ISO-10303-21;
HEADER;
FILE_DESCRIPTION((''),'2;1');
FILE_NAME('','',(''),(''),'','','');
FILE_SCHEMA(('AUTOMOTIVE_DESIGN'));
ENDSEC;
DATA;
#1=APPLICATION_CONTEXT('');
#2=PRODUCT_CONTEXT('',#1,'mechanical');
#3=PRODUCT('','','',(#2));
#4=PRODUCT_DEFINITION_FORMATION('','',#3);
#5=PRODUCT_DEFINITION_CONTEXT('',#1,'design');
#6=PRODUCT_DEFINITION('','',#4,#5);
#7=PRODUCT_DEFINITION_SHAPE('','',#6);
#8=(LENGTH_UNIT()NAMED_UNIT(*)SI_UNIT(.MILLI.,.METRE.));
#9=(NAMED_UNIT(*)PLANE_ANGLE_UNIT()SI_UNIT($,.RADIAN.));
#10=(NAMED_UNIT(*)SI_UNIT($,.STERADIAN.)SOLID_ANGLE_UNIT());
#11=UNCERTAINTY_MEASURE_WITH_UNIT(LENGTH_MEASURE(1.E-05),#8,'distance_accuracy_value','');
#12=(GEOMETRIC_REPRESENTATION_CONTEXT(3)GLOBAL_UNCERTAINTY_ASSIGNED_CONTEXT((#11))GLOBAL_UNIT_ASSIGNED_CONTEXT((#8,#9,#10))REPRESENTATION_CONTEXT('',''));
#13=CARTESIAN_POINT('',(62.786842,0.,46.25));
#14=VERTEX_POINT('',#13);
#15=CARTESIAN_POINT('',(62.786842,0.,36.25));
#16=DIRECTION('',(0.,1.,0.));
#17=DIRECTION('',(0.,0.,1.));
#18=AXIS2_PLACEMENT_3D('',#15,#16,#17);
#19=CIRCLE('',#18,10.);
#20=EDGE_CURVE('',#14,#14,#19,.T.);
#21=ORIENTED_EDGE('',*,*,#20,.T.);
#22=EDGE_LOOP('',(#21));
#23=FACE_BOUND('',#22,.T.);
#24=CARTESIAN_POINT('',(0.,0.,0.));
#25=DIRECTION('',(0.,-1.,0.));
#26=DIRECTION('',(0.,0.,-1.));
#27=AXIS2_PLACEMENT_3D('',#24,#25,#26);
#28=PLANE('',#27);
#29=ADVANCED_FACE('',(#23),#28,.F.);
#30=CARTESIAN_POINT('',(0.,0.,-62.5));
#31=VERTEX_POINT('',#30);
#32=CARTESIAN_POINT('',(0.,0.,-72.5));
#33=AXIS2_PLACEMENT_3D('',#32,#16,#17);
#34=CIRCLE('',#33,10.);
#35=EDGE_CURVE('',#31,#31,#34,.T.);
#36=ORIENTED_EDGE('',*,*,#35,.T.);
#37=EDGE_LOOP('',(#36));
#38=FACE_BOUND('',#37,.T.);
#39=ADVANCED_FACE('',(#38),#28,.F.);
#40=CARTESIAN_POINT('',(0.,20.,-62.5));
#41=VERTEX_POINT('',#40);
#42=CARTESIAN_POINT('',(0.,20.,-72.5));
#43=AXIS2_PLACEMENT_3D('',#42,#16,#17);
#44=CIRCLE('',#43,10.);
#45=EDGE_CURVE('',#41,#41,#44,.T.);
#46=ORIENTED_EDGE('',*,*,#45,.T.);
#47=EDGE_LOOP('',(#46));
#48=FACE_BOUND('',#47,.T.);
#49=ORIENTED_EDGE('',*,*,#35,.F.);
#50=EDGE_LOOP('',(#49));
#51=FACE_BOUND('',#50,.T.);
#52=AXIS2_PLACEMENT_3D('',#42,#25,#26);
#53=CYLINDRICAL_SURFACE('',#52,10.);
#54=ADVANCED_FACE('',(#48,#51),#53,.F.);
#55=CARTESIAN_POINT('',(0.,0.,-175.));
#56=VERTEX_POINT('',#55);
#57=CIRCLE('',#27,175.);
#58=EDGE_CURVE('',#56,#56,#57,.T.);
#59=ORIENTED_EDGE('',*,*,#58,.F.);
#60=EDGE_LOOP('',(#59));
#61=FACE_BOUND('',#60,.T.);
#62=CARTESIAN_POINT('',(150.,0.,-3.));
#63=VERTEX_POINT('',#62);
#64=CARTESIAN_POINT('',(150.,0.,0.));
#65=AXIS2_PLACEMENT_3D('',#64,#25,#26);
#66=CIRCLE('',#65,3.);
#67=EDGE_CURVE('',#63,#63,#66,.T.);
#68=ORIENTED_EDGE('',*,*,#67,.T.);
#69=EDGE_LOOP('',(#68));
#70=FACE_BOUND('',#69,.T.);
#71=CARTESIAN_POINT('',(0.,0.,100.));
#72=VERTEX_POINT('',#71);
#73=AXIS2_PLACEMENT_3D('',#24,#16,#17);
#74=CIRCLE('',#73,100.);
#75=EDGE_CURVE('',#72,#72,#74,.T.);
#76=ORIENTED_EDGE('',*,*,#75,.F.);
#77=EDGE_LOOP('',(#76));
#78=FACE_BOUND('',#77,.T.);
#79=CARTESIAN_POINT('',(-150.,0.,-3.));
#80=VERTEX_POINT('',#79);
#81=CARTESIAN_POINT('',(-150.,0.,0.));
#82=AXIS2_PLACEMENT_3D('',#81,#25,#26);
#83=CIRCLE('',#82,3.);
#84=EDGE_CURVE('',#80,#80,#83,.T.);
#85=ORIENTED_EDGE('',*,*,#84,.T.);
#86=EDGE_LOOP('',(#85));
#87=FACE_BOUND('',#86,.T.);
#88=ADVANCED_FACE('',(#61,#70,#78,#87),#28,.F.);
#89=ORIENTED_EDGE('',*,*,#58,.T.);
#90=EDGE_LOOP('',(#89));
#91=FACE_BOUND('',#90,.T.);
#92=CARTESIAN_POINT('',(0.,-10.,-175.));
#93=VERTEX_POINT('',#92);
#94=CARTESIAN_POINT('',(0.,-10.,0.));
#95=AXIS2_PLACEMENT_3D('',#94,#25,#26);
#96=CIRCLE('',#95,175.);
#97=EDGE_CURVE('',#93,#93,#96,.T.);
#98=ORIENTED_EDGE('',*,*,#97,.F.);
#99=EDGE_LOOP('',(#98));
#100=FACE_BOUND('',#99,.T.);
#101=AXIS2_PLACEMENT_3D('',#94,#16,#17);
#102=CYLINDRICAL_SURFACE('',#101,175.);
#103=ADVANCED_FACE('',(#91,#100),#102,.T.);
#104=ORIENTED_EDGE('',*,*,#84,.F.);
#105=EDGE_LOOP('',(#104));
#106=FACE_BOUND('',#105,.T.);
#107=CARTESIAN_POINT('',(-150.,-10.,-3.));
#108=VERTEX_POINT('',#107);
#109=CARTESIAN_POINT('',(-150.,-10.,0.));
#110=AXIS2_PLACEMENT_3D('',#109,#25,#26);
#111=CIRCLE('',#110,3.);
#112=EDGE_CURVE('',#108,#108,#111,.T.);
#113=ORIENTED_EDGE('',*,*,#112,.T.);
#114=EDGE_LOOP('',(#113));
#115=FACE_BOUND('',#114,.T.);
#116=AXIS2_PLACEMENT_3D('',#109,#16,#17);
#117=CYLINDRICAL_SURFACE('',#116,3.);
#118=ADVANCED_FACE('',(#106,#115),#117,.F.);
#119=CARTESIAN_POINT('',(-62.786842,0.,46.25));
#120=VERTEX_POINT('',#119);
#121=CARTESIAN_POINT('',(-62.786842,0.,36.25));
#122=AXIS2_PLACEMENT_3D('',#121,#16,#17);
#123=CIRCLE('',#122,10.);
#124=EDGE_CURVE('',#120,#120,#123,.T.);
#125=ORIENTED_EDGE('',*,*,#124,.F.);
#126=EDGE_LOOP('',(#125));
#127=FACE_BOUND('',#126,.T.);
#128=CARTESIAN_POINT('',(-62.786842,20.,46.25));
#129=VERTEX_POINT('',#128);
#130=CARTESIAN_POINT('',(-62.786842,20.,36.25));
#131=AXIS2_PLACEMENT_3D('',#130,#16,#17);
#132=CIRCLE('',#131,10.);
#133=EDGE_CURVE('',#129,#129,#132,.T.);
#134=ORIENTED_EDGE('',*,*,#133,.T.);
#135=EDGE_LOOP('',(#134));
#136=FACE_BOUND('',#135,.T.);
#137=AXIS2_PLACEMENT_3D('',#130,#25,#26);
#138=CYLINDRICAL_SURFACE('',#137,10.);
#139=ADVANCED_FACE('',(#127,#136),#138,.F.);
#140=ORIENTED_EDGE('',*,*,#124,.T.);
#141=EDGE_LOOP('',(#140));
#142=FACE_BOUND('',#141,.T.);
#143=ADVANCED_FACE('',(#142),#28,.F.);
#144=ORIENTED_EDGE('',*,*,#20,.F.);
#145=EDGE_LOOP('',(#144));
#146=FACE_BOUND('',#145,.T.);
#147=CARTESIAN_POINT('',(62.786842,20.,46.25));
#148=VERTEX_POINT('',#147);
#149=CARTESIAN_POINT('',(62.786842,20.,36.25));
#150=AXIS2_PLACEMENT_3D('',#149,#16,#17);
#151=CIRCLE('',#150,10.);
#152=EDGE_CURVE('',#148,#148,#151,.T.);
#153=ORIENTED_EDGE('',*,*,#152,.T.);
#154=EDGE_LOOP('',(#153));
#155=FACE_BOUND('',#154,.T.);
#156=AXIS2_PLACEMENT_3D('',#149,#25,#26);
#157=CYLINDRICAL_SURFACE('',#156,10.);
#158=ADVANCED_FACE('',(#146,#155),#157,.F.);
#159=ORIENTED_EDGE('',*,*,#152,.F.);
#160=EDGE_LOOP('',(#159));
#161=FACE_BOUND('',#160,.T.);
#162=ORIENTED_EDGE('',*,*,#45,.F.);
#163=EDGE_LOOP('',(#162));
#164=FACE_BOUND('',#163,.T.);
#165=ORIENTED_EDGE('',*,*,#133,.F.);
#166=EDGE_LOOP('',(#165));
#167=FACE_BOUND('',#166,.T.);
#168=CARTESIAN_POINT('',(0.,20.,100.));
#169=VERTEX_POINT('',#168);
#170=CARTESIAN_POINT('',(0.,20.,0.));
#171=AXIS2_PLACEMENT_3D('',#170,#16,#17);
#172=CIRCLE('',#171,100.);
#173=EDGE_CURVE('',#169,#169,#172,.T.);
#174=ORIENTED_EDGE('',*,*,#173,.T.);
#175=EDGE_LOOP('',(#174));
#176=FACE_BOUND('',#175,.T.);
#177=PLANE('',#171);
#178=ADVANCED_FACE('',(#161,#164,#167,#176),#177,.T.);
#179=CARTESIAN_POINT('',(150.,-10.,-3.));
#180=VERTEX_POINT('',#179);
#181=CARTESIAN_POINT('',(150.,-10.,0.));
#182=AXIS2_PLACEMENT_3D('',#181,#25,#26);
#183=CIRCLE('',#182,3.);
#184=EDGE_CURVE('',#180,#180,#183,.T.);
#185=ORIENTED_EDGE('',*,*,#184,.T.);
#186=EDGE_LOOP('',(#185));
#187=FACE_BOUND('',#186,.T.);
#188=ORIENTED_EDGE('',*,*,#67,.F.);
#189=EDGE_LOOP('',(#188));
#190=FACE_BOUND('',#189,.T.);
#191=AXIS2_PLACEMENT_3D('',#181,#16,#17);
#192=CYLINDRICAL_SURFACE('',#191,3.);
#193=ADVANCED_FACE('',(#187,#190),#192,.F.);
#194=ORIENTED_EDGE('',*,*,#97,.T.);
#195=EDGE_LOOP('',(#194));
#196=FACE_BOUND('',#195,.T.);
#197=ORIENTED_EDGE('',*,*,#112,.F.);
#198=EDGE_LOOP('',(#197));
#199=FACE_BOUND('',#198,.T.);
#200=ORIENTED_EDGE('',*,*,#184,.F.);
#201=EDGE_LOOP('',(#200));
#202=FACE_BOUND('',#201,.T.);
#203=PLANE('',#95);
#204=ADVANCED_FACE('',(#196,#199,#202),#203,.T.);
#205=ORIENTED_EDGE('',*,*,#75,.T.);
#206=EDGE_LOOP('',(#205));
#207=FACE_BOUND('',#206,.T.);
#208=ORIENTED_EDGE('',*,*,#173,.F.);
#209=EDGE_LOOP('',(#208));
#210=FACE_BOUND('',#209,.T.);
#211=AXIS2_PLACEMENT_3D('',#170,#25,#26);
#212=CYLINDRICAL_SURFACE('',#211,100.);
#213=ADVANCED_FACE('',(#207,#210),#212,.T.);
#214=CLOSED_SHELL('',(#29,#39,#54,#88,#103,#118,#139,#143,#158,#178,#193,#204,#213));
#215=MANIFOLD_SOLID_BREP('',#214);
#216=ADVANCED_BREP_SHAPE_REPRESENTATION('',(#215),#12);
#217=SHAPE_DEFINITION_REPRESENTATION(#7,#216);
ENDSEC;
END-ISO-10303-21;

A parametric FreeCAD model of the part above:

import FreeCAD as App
import Part
import Sketcher

doc = App.newDocument("Part")
body = doc.addObject("PartDesign::Body", "Body")

# Sketch on XZ plane
sketch1 = body.newObject("Sketcher::SketchObject", "Sketch")
sketch1.AttachmentSupport = (doc.getObject("XZ_Plane"), [""])
sketch1.MapMode = "FlatFace"
sketch1.addGeometry([
    Part.Circle(App.Vector(0, 0, 0), App.Vector(0, 0, 1), 100),
    Part.Circle(App.Vector(0, -72.5, 0), App.Vector(0, 0, 1), 10),
    Part.Circle(App.Vector(-62.786842, 36.25, 0), App.Vector(0, 0, 1), 10),
    Part.Circle(App.Vector(62.786842, 36.25, 0), App.Vector(0, 0, 1), 10),
], False)
sketch1.addConstraint([
    Sketcher.Constraint("Coincident", 0, 3, -1, 1),
    Sketcher.Constraint("Equal", 1, 2),
    Sketcher.Constraint("Equal", 2, 3),
    Sketcher.Constraint("Symmetric", 2, 3, 3, 3, -2),
    Sketcher.Constraint("PointOnObject", 1, 3, -2),
    Sketcher.Constraint("Diameter", 0, 200.0),
    Sketcher.Constraint("Diameter", 1, 20.0),
    Sketcher.Constraint("DistanceY", 1, 3, -1, 1, 72.5),
    Sketcher.Constraint("DistanceY", -1, 1, 2, 3, 36.25),
    Sketcher.Constraint("DistanceX", 2, 3, -1, 1, 62.786842),
])
pad1 = body.newObject("PartDesign::Pad", "Pad")
pad1.Profile = sketch1
pad1.Length = 20
pad1.Reversed = True

# Sketch on XZ plane
sketch2 = body.newObject("Sketcher::SketchObject", "Sketch001")
sketch2.AttachmentSupport = (doc.getObject("XZ_Plane"), [""])
sketch2.MapMode = "FlatFace"
sketch2.addGeometry([
    Part.Circle(App.Vector(0, 0, 0), App.Vector(0, 0, 1), 175),
    Part.Circle(App.Vector(-150, 0, 0), App.Vector(0, 0, 1), 3),
    Part.Circle(App.Vector(150, 0, 0), App.Vector(0, 0, 1), 3),
], False)
sketch2.addConstraint([
    Sketcher.Constraint("Coincident", 0, 3, -1, 1),
    Sketcher.Constraint("Equal", 1, 2),
    Sketcher.Constraint("Symmetric", 1, 3, 2, 3, -1, 1),
    Sketcher.Constraint("PointOnObject", 1, 3, -1),
    Sketcher.Constraint("Diameter", 0, 350.0),
    Sketcher.Constraint("Diameter", 1, 6.0),
    Sketcher.Constraint("DistanceX", 1, 3, -1, 1, 150.0),
])
pad2 = body.newObject("PartDesign::Pad", "Pad001")
pad2.Profile = sketch2
pad2.Length = 10

doc.recompute()
